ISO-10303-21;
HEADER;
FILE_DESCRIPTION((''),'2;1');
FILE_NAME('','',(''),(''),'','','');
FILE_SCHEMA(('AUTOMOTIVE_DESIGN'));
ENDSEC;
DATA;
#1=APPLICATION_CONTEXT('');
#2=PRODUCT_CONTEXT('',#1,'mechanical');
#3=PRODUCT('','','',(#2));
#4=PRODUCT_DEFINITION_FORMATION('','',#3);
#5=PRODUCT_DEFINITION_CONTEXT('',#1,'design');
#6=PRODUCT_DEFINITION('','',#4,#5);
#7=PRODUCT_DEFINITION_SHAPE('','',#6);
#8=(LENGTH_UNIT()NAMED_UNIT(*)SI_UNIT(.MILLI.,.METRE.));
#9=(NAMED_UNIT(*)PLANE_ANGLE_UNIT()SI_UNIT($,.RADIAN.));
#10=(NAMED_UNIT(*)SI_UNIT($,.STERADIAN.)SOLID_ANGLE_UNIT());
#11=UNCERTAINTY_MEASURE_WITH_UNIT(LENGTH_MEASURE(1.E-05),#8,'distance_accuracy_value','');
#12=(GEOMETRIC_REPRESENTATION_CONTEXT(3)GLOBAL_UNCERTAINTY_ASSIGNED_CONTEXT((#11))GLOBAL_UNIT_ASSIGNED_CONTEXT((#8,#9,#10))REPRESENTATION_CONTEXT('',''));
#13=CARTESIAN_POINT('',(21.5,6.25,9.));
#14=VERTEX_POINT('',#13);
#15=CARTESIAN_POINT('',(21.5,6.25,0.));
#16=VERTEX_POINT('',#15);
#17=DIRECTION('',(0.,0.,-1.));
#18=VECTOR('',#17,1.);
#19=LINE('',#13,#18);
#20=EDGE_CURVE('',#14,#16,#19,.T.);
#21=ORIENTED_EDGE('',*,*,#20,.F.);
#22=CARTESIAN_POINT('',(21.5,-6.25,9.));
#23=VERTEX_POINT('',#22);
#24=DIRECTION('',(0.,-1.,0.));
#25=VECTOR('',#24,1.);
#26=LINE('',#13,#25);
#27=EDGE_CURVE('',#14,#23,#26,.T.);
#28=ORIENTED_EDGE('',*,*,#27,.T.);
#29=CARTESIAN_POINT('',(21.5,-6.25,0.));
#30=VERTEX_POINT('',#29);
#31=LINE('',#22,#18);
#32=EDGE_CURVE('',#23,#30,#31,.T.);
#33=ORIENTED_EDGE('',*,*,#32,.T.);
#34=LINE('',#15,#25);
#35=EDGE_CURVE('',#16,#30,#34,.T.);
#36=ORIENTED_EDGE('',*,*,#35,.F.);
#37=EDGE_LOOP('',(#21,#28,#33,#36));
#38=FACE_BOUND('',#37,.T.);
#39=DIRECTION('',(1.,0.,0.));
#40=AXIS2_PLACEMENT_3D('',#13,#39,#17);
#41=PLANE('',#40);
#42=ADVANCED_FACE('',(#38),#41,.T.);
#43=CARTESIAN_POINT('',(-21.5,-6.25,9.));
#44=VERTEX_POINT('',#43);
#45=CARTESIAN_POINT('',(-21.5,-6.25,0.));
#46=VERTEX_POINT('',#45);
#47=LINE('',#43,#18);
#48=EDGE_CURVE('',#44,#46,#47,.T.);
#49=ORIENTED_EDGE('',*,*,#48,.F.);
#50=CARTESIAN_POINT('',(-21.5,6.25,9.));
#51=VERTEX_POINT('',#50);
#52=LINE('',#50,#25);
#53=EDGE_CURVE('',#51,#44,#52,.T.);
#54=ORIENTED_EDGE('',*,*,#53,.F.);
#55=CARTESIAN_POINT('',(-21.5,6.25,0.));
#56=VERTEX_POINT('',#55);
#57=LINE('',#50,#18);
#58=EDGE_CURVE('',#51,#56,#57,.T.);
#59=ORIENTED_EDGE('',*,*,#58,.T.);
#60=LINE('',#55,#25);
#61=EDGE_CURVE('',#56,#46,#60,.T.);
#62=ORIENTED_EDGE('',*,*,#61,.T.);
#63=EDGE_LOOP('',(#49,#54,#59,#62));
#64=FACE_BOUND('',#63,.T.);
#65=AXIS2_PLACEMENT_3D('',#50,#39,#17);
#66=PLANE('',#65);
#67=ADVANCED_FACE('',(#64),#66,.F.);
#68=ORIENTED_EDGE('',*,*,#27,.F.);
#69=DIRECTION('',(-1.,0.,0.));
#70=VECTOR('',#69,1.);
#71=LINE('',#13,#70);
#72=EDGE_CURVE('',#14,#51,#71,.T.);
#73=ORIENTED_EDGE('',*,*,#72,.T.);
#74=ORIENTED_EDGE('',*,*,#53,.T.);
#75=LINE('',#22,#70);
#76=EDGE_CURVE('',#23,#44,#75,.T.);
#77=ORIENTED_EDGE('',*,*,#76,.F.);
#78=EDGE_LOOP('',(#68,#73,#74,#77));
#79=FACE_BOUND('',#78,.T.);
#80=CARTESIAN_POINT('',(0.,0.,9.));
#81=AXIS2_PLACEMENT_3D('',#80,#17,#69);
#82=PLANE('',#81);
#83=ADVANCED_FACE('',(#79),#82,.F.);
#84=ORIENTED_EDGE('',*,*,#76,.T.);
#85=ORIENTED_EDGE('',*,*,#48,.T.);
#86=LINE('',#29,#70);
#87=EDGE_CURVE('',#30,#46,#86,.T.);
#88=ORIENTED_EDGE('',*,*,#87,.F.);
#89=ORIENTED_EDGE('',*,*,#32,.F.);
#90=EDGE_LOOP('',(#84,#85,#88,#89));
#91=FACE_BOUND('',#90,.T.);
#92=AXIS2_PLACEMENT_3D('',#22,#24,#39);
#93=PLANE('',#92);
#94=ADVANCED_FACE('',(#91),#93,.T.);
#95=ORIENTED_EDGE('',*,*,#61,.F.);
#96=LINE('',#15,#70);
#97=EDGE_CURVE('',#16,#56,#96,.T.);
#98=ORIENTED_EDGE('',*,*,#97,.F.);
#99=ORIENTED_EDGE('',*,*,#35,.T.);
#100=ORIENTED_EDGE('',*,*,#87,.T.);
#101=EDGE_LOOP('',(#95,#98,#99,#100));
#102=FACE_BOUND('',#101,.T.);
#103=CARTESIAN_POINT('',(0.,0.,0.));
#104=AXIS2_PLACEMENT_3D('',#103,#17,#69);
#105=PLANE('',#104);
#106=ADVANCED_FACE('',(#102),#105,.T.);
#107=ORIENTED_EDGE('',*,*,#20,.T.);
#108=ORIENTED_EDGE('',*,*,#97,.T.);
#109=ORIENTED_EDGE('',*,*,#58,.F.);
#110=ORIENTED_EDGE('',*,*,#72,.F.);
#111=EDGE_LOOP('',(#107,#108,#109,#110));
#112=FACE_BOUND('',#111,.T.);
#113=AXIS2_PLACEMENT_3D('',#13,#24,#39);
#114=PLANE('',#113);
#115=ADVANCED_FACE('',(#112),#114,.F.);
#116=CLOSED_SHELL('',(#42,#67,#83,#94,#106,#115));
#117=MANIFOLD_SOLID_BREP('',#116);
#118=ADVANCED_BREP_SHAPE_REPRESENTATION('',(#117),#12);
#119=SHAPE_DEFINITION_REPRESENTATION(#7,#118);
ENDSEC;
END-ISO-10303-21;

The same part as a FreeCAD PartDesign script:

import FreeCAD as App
import Part
import Sketcher

V = App.Vector
Q = App.Units.Quantity


def add_polygon(sketch, points):
    """Adds a closed chain of lines whose ends are joined by coincident constraints."""
    first, n = sketch.GeometryCount, len(points)
    for a, b in zip(points, points[1:] + points[:1]):
        sketch.addGeometry(Part.LineSegment(App.Vector(*a, 0), App.Vector(*b, 0)), False)
    for i in range(n):
        sketch.addConstraint(Sketcher.Constraint("Coincident", first + i, 2, first + (i + 1) % n, 1))

doc = App.newDocument("Part")
body = doc.addObject("PartDesign::Body", "Body")

# Sketch on XY plane
sketch1 = body.newObject("Sketcher::SketchObject", "Sketch")
sketch1.AttachmentSupport = (doc.getObject("XY_Plane"), [""])
sketch1.MapMode = "FlatFace"
add_polygon(sketch1, [(-21.5, 6.25), (-21.5, -6.25), (21.5, -6.25), (21.5, 6.25)])  # lines 0-3
sketch1.addConstraint(Sketcher.Constraint("Vertical", 0))
sketch1.addConstraint(Sketcher.Constraint("Horizontal", 1))
sketch1.addConstraint(Sketcher.Constraint("Vertical", 2))
sketch1.addConstraint(Sketcher.Constraint("Horizontal", 3))
sketch1.addConstraint(Sketcher.Constraint("Symmetric", 0, 2, 2, 2, -1, 1))
sketch1.addConstraint(Sketcher.Constraint("DistanceX", 1, 1, 1, 2, Q("43 mm")))
sketch1.addConstraint(Sketcher.Constraint("DistanceY", 0, 2, 0, 1, Q("12.5 mm")))
pad1 = body.newObject("PartDesign::Pad", "Pad")
pad1.Profile = sketch1
pad1.Length = 9

doc.recompute()
